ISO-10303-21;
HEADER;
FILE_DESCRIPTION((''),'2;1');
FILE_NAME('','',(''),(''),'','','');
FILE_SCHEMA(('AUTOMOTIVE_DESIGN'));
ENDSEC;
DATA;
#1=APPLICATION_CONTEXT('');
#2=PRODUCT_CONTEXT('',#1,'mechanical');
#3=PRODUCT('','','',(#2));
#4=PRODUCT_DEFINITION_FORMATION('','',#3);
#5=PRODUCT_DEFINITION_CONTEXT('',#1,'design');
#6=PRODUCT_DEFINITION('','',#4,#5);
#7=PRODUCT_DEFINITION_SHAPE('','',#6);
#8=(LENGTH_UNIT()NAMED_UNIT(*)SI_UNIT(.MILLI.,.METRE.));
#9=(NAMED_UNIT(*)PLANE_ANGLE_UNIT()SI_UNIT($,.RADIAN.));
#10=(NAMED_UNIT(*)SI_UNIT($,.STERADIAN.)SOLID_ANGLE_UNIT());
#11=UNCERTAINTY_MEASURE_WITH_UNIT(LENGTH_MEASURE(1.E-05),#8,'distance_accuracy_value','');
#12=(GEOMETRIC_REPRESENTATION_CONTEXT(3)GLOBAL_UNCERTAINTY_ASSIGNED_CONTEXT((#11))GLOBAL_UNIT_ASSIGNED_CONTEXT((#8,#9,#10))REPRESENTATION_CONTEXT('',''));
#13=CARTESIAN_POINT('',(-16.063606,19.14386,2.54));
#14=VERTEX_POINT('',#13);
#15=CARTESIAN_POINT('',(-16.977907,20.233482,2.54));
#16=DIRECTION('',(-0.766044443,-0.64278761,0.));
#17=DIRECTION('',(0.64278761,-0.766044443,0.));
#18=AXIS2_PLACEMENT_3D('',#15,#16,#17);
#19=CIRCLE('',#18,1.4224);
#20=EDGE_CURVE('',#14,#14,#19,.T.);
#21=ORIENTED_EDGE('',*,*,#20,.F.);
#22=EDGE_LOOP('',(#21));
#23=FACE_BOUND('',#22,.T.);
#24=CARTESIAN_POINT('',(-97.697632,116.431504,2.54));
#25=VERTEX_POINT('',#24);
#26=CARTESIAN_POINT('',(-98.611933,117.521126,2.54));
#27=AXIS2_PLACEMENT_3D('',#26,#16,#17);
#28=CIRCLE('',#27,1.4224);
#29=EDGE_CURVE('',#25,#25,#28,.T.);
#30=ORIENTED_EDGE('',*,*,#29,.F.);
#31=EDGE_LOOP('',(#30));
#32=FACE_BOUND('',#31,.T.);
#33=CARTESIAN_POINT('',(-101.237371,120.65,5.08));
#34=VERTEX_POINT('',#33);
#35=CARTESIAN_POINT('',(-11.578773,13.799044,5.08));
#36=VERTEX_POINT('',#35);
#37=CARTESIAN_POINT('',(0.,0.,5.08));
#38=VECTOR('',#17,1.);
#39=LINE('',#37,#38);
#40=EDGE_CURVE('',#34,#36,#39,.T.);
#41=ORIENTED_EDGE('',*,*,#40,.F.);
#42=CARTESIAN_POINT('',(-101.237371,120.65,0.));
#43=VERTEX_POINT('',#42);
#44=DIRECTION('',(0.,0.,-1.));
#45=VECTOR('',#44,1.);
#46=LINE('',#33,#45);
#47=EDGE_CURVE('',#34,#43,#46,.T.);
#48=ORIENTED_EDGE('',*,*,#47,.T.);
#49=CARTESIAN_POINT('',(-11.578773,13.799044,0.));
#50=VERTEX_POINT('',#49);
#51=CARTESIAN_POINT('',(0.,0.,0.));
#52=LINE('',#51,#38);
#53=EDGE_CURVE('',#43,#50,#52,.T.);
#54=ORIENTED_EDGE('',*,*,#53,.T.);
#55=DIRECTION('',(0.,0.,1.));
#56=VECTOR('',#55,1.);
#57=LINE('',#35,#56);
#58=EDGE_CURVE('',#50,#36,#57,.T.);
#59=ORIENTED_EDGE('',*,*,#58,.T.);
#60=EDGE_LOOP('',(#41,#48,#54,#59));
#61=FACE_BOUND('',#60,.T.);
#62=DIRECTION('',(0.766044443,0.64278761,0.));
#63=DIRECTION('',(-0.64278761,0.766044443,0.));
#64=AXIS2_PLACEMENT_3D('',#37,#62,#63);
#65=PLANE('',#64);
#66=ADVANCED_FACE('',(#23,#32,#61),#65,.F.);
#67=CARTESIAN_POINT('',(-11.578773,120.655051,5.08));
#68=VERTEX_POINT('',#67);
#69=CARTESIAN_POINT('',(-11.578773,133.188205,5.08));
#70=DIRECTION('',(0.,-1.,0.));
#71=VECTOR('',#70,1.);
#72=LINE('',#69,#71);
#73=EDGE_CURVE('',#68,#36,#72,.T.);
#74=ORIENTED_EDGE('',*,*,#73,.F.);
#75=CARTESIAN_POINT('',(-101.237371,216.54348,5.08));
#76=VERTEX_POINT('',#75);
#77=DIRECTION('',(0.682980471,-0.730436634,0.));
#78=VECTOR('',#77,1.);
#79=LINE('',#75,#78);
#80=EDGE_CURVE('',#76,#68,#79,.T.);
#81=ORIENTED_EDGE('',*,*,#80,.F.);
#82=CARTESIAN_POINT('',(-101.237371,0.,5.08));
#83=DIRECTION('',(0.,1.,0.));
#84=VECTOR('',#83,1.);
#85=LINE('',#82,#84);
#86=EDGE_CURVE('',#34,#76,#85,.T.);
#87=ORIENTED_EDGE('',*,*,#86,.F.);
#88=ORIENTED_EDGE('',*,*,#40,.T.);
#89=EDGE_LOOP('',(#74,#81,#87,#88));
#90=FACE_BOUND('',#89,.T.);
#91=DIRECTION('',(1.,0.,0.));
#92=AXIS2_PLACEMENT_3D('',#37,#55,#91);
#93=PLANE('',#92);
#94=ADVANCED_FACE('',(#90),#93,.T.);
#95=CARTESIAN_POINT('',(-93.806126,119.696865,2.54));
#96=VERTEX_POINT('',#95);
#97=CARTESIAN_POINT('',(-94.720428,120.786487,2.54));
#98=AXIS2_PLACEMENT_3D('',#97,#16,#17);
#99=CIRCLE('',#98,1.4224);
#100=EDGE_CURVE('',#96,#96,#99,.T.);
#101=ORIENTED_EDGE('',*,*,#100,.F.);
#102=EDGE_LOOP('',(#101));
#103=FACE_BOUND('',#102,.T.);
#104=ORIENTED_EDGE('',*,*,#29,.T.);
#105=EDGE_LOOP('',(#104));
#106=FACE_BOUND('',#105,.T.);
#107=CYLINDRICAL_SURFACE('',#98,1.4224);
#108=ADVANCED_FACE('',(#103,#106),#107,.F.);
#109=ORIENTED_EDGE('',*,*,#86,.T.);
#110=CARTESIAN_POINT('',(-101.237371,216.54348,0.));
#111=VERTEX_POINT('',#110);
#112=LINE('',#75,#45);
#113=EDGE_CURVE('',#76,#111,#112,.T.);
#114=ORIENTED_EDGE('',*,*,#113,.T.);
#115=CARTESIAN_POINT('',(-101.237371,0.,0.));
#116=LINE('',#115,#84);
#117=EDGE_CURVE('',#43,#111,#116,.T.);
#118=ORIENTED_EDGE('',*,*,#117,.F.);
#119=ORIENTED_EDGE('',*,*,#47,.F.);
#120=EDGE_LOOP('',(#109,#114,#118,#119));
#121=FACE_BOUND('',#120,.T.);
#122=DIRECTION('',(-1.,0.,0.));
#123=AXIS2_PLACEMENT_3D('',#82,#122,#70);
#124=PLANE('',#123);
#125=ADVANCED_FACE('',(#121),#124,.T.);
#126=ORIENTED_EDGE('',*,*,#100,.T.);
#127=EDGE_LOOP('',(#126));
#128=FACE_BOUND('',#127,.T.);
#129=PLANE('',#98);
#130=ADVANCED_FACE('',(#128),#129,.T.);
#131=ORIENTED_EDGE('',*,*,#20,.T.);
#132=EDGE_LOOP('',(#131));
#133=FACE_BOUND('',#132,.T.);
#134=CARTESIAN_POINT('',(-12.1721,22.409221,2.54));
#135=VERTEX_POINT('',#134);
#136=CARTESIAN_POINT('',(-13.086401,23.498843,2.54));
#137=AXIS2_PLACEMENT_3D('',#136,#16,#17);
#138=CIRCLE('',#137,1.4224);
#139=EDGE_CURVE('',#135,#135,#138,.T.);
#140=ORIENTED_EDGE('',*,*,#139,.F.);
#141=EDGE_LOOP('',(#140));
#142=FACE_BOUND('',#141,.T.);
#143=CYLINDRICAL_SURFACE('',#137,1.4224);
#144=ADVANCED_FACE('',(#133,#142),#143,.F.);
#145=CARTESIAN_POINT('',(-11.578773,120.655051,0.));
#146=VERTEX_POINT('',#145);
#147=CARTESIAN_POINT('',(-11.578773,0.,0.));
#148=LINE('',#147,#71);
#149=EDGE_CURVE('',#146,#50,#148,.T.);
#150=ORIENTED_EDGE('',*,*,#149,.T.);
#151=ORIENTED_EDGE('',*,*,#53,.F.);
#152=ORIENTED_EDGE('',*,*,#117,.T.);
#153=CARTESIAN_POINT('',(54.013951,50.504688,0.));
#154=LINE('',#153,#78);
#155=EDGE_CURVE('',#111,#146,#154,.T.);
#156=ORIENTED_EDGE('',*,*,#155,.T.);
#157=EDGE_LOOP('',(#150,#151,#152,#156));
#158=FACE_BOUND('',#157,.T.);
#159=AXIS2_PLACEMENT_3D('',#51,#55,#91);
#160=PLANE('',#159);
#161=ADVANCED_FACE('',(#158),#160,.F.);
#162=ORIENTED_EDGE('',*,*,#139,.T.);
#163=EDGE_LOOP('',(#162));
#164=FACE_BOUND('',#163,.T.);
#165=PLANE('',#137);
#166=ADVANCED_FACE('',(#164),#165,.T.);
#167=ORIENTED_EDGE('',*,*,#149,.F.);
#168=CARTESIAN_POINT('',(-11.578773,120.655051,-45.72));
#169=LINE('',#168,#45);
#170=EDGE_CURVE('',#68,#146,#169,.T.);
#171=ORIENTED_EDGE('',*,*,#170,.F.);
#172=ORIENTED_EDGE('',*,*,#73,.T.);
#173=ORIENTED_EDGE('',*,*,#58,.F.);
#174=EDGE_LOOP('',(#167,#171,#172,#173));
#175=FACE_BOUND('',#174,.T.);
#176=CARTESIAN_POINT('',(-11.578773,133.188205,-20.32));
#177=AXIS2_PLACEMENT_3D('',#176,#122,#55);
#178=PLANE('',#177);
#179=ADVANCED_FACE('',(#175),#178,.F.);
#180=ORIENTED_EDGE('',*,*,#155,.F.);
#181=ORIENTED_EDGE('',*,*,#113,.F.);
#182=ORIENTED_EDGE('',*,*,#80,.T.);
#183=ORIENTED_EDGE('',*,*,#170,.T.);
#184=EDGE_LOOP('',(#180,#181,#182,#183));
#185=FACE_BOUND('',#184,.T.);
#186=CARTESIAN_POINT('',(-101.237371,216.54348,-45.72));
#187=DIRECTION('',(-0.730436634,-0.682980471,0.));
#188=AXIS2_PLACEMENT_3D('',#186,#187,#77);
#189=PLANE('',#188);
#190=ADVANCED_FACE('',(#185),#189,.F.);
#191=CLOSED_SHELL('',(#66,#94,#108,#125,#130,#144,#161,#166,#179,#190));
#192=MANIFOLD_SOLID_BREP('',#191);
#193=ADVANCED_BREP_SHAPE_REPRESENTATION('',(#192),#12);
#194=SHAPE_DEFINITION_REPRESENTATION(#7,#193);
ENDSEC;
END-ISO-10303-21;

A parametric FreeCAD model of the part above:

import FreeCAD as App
import Part
import Sketcher

V = App.Vector
Q = App.Units.Quantity

doc = App.newDocument("Part")
body = doc.addObject("PartDesign::Body", "Body")

# Sketch on XY plane
sketch1 = body.newObject("Sketcher::SketchObject", "Sketch")
sketch1.AttachmentSupport = (doc.getObject("XY_Plane"), [""])
sketch1.MapMode = "FlatFace"
sketch1.addGeometry([
    Part.LineSegment(V(-101.237371, 216.54348, 0), V(-101.237371, 120.65, 0)),
    Part.LineSegment(V(-101.237371, 120.65, 0), V(0, 0, 0)),
    Part.LineSegment(V(0, 0, 0), V(0, 216.54348, 0)),
    Part.LineSegment(V(0, 216.54348, 0), V(-101.237371, 216.54348, 0)),
], False)
sketch1.addConstraint([
    Sketcher.Constraint("Coincident", 0, 2, 1, 1),
    Sketcher.Constraint("Coincident", 1, 2, 2, 1),
    Sketcher.Constraint("Coincident", 2, 2, 3, 1),
    Sketcher.Constraint("Coincident", 3, 2, 0, 1),
    Sketcher.Constraint("Vertical", 0),
    Sketcher.Constraint("Vertical", 2),
    Sketcher.Constraint("Horizontal", 3),
    Sketcher.Constraint("Coincident", 1, 2, -1, 1),
    Sketcher.Constraint("Angle", 1, Q("-50 deg")),
    Sketcher.Constraint("DistanceY", -1, 1, 0, 2, Q("4.75 in")),
    Sketcher.Constraint("DistanceY", 0, 2, 0, 1, 95.89348),
])
pad1 = body.newObject("PartDesign::Pad", "Pad")
pad1.Profile = sketch1
pad1.Length = Q("0.2 in")

# Sketch on XY plane
sketch2 = body.newObject("Sketcher::SketchObject", "Sketch001")
sketch2.AttachmentSupport = (doc.getObject("XY_Plane"), [""])
sketch2.MapMode = "FlatFace"
sketch2.AttachmentOffset = App.Placement(V(0, 0, 0.2 * 25.4), App.Rotation())
sketch2.addGeometry([
    Part.LineSegment(V(-101.237371, 216.54348, 0), V(0, 108.27174, 0)),
    Part.LineSegment(V(0, 108.27174, 0), V(0, 216.54348, 0)),
    Part.LineSegment(V(0, 216.54348, 0), V(-101.237371, 216.54348, 0)),
], False)
sketch2.addConstraint([
    Sketcher.Constraint("Coincident", 0, 2, 1, 1),
    Sketcher.Constraint("Coincident", 1, 2, 2, 1),
    Sketcher.Constraint("Coincident", 2, 2, 0, 1),
    Sketcher.Constraint("Vertical", 1),
    Sketcher.Constraint("Horizontal", 2),
    Sketcher.Constraint("PointOnObject", 0, 2, -2),
    Sketcher.Constraint("DistanceX", 2, 2, 2, 1, 101.237371),
    Sketcher.Constraint("DistanceY", 1, 1, 1, 2, 108.27174),
    Sketcher.Constraint("DistanceY", -1, 1, 0, 2, 108.27174),
])
pocket1 = body.newObject("PartDesign::Pocket", "Pocket")
pocket1.Profile = sketch2
pocket1.Length = Q("2 in")

# Sketch on XY plane
sketch3 = body.newObject("Sketcher::SketchObject", "Sketch002")
sketch3.AttachmentSupport = (doc.getObject("XY_Plane"), [""])
sketch3.MapMode = "FlatFace"
sketch3.AttachmentOffset = App.Placement(V(0, 0, 0.2 * 25.4), App.Rotation())
sketch3.addGeometry([
    Part.LineSegment(V(-11.578773, 133.188205, 0), V(-11.578773, -8.401858, 0)),
    Part.LineSegment(V(-11.578773, -8.401858, 0), V(22.799061, -8.401858, 0)),
    Part.LineSegment(V(22.799061, -8.401858, 0), V(22.799061, 133.188205, 0)),
    Part.LineSegment(V(22.799061, 133.188205, 0), V(-11.578773, 133.188205, 0)),
], False)
sketch3.addConstraint([
    Sketcher.Constraint("Coincident", 0, 2, 1, 1),
    Sketcher.Constraint("Coincident", 1, 2, 2, 1),
    Sketcher.Constraint("Coincident", 2, 2, 3, 1),
    Sketcher.Constraint("Coincident", 3, 2, 0, 1),
    Sketcher.Constraint("Vertical", 0),
    Sketcher.Constraint("Horizontal", 1),
    Sketcher.Constraint("Vertical", 2),
    Sketcher.Constraint("Horizontal", 3),
    Sketcher.Constraint("DistanceX", 1, 1, 1, 2, 34.377834),
    Sketcher.Constraint("DistanceY", 0, 2, 0, 1, 141.590062),
    Sketcher.Constraint("DistanceX", -1, 1, 1, 2, 22.799061),
    Sketcher.Constraint("DistanceY", 0, 2, -1, 1, 8.401858),
])
pocket2 = body.newObject("PartDesign::Pocket", "Pocket001")
pocket2.Profile = sketch3
pocket2.Length = Q("1 in")

# Sketch on an angled plane
sketch4 = body.newObject("Sketcher::SketchObject", "Sketch003")
sketch4.Placement = App.Placement(V(0, 0, 0), App.Rotation(V(0, 0, 1), V(-0.64278761, 0.766044443, 0), V(-0.766044443, -0.64278761, 0), "ZXY"))
sketch4.addGeometry([
    Part.Circle(V(2.54, 26.412934, 0), V(0, 0, 1), 1.4224),
    Part.Circle(V(2.54, 153.412934, 0), V(0, 0, 1), 1.4224),
], False)
sketch4.addConstraint([
    Sketcher.Constraint("Equal", 0, 1),
    Sketcher.Constraint("Vertical", 0, 3, 1, 3),
    Sketcher.Constraint("Diameter", 0, Q("0.112 in")),
    Sketcher.Constraint("DistanceY", 0, 3, 1, 3, Q("5 in")),
    Sketcher.Constraint("DistanceX", -1, 1, 0, 3, Q("0.1 in")),
    Sketcher.Constraint("DistanceY", -1, 1, 0, 3, 26.412934),
])
pocket3 = body.newObject("PartDesign::Pocket", "Pocket002")
pocket3.Profile = sketch4
pocket3.Length = Q("0.2 in")

doc.recompute()
